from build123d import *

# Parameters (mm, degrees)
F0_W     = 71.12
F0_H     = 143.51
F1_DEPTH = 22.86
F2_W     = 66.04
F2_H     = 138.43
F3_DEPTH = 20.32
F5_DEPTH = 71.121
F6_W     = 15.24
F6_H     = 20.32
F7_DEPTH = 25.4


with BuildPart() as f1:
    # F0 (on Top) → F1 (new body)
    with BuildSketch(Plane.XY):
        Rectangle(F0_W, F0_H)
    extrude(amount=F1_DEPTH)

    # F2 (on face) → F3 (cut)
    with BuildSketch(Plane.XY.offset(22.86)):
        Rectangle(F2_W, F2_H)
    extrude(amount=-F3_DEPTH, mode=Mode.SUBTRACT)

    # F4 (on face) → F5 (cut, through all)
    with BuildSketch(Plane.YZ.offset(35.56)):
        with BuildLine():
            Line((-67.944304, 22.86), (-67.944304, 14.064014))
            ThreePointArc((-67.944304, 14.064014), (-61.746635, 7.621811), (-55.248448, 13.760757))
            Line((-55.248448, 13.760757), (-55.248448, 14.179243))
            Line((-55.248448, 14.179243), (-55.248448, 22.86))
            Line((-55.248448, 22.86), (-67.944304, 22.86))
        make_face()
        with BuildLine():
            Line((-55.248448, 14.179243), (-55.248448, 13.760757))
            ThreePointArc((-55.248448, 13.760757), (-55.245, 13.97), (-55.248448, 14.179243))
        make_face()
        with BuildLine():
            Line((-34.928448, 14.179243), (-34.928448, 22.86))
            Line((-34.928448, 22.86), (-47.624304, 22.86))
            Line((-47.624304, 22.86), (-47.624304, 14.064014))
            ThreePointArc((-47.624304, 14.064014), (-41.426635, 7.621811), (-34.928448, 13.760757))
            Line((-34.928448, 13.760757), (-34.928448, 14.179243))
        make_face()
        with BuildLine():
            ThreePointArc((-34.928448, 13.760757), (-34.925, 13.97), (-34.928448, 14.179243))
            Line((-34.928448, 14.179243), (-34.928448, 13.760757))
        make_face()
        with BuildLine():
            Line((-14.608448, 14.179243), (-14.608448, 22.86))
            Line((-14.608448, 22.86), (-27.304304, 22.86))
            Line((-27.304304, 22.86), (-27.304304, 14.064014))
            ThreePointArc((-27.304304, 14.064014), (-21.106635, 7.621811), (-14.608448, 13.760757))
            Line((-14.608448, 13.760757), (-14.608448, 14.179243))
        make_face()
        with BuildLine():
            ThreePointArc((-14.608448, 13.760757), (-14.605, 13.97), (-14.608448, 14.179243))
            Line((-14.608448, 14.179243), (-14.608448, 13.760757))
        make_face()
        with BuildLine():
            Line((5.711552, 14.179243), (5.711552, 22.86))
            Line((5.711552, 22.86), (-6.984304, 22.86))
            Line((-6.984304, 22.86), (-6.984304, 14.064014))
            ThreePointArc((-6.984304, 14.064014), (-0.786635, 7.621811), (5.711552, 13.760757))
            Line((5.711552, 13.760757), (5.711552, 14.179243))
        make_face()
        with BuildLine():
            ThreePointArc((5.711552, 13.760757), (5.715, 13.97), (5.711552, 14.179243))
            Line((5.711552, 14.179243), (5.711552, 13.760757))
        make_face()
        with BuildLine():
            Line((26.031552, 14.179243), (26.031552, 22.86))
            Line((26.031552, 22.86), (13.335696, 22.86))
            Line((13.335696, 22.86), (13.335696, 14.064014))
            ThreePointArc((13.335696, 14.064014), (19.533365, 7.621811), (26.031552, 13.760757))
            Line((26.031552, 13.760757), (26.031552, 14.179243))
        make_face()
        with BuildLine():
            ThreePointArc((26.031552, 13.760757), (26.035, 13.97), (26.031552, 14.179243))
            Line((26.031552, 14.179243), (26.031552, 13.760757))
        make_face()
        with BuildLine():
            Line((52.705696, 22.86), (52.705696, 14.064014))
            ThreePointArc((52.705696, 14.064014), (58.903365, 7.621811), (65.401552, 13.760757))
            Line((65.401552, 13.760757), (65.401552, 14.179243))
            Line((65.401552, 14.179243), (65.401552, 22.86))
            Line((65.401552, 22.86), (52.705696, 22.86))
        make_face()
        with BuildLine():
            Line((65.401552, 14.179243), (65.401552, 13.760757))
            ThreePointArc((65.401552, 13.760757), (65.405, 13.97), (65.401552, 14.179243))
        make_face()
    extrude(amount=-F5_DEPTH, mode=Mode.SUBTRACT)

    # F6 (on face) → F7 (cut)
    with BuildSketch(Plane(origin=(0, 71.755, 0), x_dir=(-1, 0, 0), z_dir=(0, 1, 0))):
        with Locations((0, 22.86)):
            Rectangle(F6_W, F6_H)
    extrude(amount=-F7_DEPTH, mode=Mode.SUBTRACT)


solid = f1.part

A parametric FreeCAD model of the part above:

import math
import FreeCAD as App
import Part
import Sketcher
Q = App.Units.Quantity


def add_polygon(sketch, points):
    """Adds a closed chain of lines whose ends are joined by coincident constraints."""
    first, n = sketch.GeometryCount, len(points)
    for a, b in zip(points, points[1:] + points[:1]):
        sketch.addGeometry(Part.LineSegment(App.Vector(*a, 0), App.Vector(*b, 0)), False)
    for i in range(n):
        sketch.addConstraint(Sketcher.Constraint("Coincident", first + i, 2, first + (i + 1) % n, 1))

doc = App.newDocument("Part")
params = doc.addObject("Spreadsheet::Sheet", "Params")
for row, (alias, value) in enumerate([
    ("sketch1_width", "2.8 in"),
    ("sketch1_height", "5.65 in"),
    ("pad1_length", "0.9 in"),
    ("sketch2_width", "2.6 in"),
    ("sketch2_height", "5.45 in"),
    ("pocket1_length", "0.8 in"),
    ("sketch3_radius", "0.25 in"),
    ("sketch4_width", "0.6 in"),
    ("sketch4_height", "0.8 in"),
    ("pocket3_length", "1 in"),
], start=1):
    params.set(f"A{row}", alias)
    params.set(f"B{row}", "=" + value)
    params.setAlias(f"B{row}", alias)

body = doc.addObject("PartDesign::Body", "Body")

# Sketch on XY plane
sketch1 = body.newObject("Sketcher::SketchObject", "Sketch")
sketch1.AttachmentSupport = (doc.getObject("XY_Plane"), [""])
sketch1.MapMode = "FlatFace"
add_polygon(sketch1, [(-36, 72), (-36, -72), (36, -72), (36, 72)])  # lines 0-3
sketch1.addConstraint(Sketcher.Constraint("Vertical", 0))
sketch1.addConstraint(Sketcher.Constraint("Horizontal", 1))
sketch1.addConstraint(Sketcher.Constraint("Vertical", 2))
sketch1.addConstraint(Sketcher.Constraint("Horizontal", 3))
sketch1.addConstraint(Sketcher.Constraint("Symmetric", 0, 2, 2, 2, -1, 1))
sketch1.addConstraint(Sketcher.Constraint("DistanceX", 1, 1, 1, 2, Q("2.8 in")))
sketch1.addConstraint(Sketcher.Constraint("DistanceY", 0, 2, 0, 1, Q("5.65 in")))
sketch1.setExpression("Constraints[9]", "Params.sketch1_width")
sketch1.setExpression("Constraints[10]", "Params.sketch1_height")
pad1 = body.newObject("PartDesign::Pad", "Pad")
pad1.Profile = sketch1
pad1.setExpression("Length", "Params.pad1_length")

# Sketch on XY plane
sketch2 = body.newObject("Sketcher::SketchObject", "Sketch001")
sketch2.AttachmentSupport = (doc.getObject("XY_Plane"), [""])
sketch2.MapMode = "FlatFace"
sketch2.AttachmentOffset = App.Placement(App.Vector(0, 0, 0.9 * 25.4), App.Rotation())
add_polygon(sketch2, [(-33, 69), (-33, -69), (33, -69), (33, 69)])  # lines 0-3
sketch2.addConstraint(Sketcher.Constraint("Vertical", 0))
sketch2.addConstraint(Sketcher.Constraint("Horizontal", 1))
sketch2.addConstraint(Sketcher.Constraint("Vertical", 2))
sketch2.addConstraint(Sketcher.Constraint("Horizontal", 3))
sketch2.addConstraint(Sketcher.Constraint("Symmetric", 0, 2, 2, 2, -1, 1))
sketch2.addConstraint(Sketcher.Constraint("DistanceX", 1, 1, 1, 2, Q("2.6 in")))
sketch2.addConstraint(Sketcher.Constraint("DistanceY", 0, 2, 0, 1, Q("5.45 in")))
sketch2.setExpression("Constraints[9]", "Params.sketch2_width")
sketch2.setExpression("Constraints[10]", "Params.sketch2_height")
pocket1 = body.newObject("PartDesign::Pocket", "Pocket")
pocket1.Profile = sketch2
pocket1.setExpression("Length", "Params.pocket1_length")

# Sketch on YZ plane
sketch3 = body.newObject("Sketcher::SketchObject", "Sketch002")
sketch3.AttachmentSupport = (doc.getObject("YZ_Plane"), [""])
sketch3.MapMode = "FlatFace"
sketch3.AttachmentOffset = App.Placement(App.Vector(0, 0, 1.4 * 25.4), App.Rotation())
sketch3.addGeometry(Part.LineSegment(App.Vector(-67.94, 22.86, 0), App.Vector(-67.94, 14.06, 0)), False)
sketch3.addGeometry(Part.ArcOfCircle(Part.Circle(App.Vector(-61.59, 13.97, 0), App.Vector(0, 0, 1), 6.35), math.radians(179), math.radians(358)), False)
sketch3.addGeometry(Part.ArcOfCircle(Part.Circle(App.Vector(-61.6, 13.97, 0), App.Vector(0, 0, 1), 6.35), math.radians(-1.89), math.radians(1.89)), False)
sketch3.addGeometry(Part.LineSegment(App.Vector(-55.25, 14.18, 0), App.Vector(-55.25, 22.86, 0)), False)
sketch3.addGeometry(Part.LineSegment(App.Vector(-55.25, 22.86, 0), App.Vector(-67.94, 22.86, 0)), False)
sketch3.addGeometry(Part.LineSegment(App.Vector(-34.93, 22.86, 0), App.Vector(-47.62, 22.86, 0)), False)
sketch3.addGeometry(Part.LineSegment(App.Vector(-47.62, 22.86, 0), App.Vector(-47.62, 14.06, 0)), False)
sketch3.addGeometry(Part.ArcOfCircle(Part.Circle(App.Vector(-41.27, 13.97, 0), App.Vector(0, 0, 1), 6.35), math.radians(179), math.radians(358)), False)
sketch3.addGeometry(Part.ArcOfCircle(Part.Circle(App.Vector(-41.28, 13.97, 0), App.Vector(0, 0, 1), 6.35), math.radians(-1.89), math.radians(1.89)), False)
sketch3.addGeometry(Part.LineSegment(App.Vector(-34.93, 14.18, 0), App.Vector(-34.93, 22.86, 0)), False)
sketch3.addGeometry(Part.LineSegment(App.Vector(-14.61, 22.86, 0), App.Vector(-27.3, 22.86, 0)), False)
sketch3.addGeometry(Part.LineSegment(App.Vector(-27.3, 22.86, 0), App.Vector(-27.3, 14.06, 0)), False)
sketch3.addGeometry(Part.ArcOfCircle(Part.Circle(App.Vector(-20.95, 13.97, 0), App.Vector(0, 0, 1), 6.35), math.radians(179), math.radians(358)), False)
sketch3.addGeometry(Part.ArcOfCircle(Part.Circle(App.Vector(-20.96, 13.97, 0), App.Vector(0, 0, 1), 6.35), math.radians(-1.89), math.radians(1.89)), False)
sketch3.addGeometry(Part.LineSegment(App.Vector(-14.61, 14.18, 0), App.Vector(-14.61, 22.86, 0)), False)
sketch3.addGeometry(Part.LineSegment(App.Vector(5.71, 22.86, 0), App.Vector(-6.98, 22.86, 0)), False)
sketch3.addGeometry(Part.LineSegment(App.Vector(-6.98, 22.86, 0), App.Vector(-6.98, 14.06, 0)), False)
sketch3.addGeometry(Part.ArcOfCircle(Part.Circle(App.Vector(-0.63, 13.97, 0), App.Vector(0, 0, 1), 6.35), math.radians(179), math.radians(358)), False)
sketch3.addGeometry(Part.ArcOfCircle(Part.Circle(App.Vector(-0.64, 13.97, 0), App.Vector(0, 0, 1), 6.35), math.radians(-1.89), math.radians(1.89)), False)
sketch3.addGeometry(Part.LineSegment(App.Vector(5.71, 14.18, 0), App.Vector(5.71, 22.86, 0)), False)
sketch3.addGeometry(Part.LineSegment(App.Vector(26.03, 22.86, 0), App.Vector(13.34, 22.86, 0)), False)
sketch3.addGeometry(Part.LineSegment(App.Vector(13.34, 22.86, 0), App.Vector(13.34, 14.06, 0)), False)
sketch3.addGeometry(Part.ArcOfCircle(Part.Circle(App.Vector(19.69, 13.97, 0), App.Vector(0, 0, 1), 6.35), math.radians(179), math.radians(358)), False)
sketch3.addGeometry(Part.ArcOfCircle(Part.Circle(App.Vector(19.68, 13.97, 0), App.Vector(0, 0, 1), 6.35), math.radians(-1.89), math.radians(1.89)), False)
sketch3.addGeometry(Part.LineSegment(App.Vector(26.03, 14.18, 0), App.Vector(26.03, 22.86, 0)), False)
sketch3.addGeometry(Part.LineSegment(App.Vector(52.71, 22.86, 0), App.Vector(52.71, 14.06, 0)), False)
sketch3.addGeometry(Part.ArcOfCircle(Part.Circle(App.Vector(59.06, 13.97, 0), App.Vector(0, 0, 1), 6.35), math.radians(179), math.radians(358)), False)
sketch3.addGeometry(Part.ArcOfCircle(Part.Circle(App.Vector(59.05, 13.97, 0), App.Vector(0, 0, 1), 6.35), math.radians(-1.89), math.radians(1.89)), False)
sketch3.addGeometry(Part.LineSegment(App.Vector(65.4, 14.18, 0), App.Vector(65.4, 22.86, 0)), False)
sketch3.addGeometry(Part.LineSegment(App.Vector(65.4, 22.86, 0), App.Vector(52.71, 22.86, 0)), False)
sketch3.addConstraint(Sketcher.Constraint("Coincident", 0, 2, 1, 1))
sketch3.addConstraint(Sketcher.Constraint("Coincident", 1, 2, 2, 1))
sketch3.addConstraint(Sketcher.Constraint("Coincident", 2, 2, 3, 1))
sketch3.addConstraint(Sketcher.Constraint("Coincident", 3, 2, 4, 1))
sketch3.addConstraint(Sketcher.Constraint("Coincident", 4, 2, 0, 1))
sketch3.addConstraint(Sketcher.Constraint("Coincident", 5, 2, 6, 1))
sketch3.addConstraint(Sketcher.Constraint("Coincident", 6, 2, 7, 1))
sketch3.addConstraint(Sketcher.Constraint("Coincident", 7, 2, 8, 1))
sketch3.addConstraint(Sketcher.Constraint("Coincident", 8, 2, 9, 1))
sketch3.addConstraint(Sketcher.Constraint("Coincident", 9, 2, 5, 1))
sketch3.addConstraint(Sketcher.Constraint("Coincident", 10, 2, 11, 1))
sketch3.addConstraint(Sketcher.Constraint("Coincident", 11, 2, 12, 1))
sketch3.addConstraint(Sketcher.Constraint("Coincident", 12, 2, 13, 1))
sketch3.addConstraint(Sketcher.Constraint("Coincident", 13, 2, 14, 1))
sketch3.addConstraint(Sketcher.Constraint("Coincident", 14, 2, 10, 1))
sketch3.addConstraint(Sketcher.Constraint("Coincident", 15, 2, 16, 1))
sketch3.addConstraint(Sketcher.Constraint("Coincident", 16, 2, 17, 1))
sketch3.addConstraint(Sketcher.Constraint("Coincident", 17, 2, 18, 1))
sketch3.addConstraint(Sketcher.Constraint("Coincident", 18, 2, 19, 1))
sketch3.addConstraint(Sketcher.Constraint("Coincident", 19, 2, 15, 1))
sketch3.addConstraint(Sketcher.Constraint("Coincident", 20, 2, 21, 1))
sketch3.addConstraint(Sketcher.Constraint("Coincident", 21, 2, 22, 1))
sketch3.addConstraint(Sketcher.Constraint("Coincident", 22, 2, 23, 1))
sketch3.addConstraint(Sketcher.Constraint("Coincident", 23, 2, 24, 1))
sketch3.addConstraint(Sketcher.Constraint("Coincident", 24, 2, 20, 1))
sketch3.addConstraint(Sketcher.Constraint("Coincident", 25, 2, 26, 1))
sketch3.addConstraint(Sketcher.Constraint("Coincident", 26, 2, 27, 1))
sketch3.addConstraint(Sketcher.Constraint("Coincident", 27, 2, 28, 1))
sketch3.addConstraint(Sketcher.Constraint("Coincident", 28, 2, 29, 1))
sketch3.addConstraint(Sketcher.Constraint("Coincident", 29, 2, 25, 1))
sketch3.addConstraint(Sketcher.Constraint("Vertical", 0))
sketch3.addConstraint(Sketcher.Constraint("Vertical", 3))
sketch3.addConstraint(Sketcher.Constraint("Horizontal", 4))
sketch3.addConstraint(Sketcher.Constraint("Horizontal", 5))
sketch3.addConstraint(Sketcher.Constraint("Vertical", 6))
sketch3.addConstraint(Sketcher.Constraint("Vertical", 9))
sketch3.addConstraint(Sketcher.Constraint("Horizontal", 10))
sketch3.addConstraint(Sketcher.Constraint("Vertical", 11))
sketch3.addConstraint(Sketcher.Constraint("Vertical", 14))
sketch3.addConstraint(Sketcher.Constraint("Horizontal", 15))
sketch3.addConstraint(Sketcher.Constraint("Vertical", 16))
sketch3.addConstraint(Sketcher.Constraint("Vertical", 19))
sketch3.addConstraint(Sketcher.Constraint("Horizontal", 20))
sketch3.addConstraint(Sketcher.Constraint("Vertical", 21))
sketch3.addConstraint(Sketcher.Constraint("Vertical", 24))
sketch3.addConstraint(Sketcher.Constraint("Vertical", 25))
sketch3.addConstraint(Sketcher.Constraint("Vertical", 28))
sketch3.addConstraint(Sketcher.Constraint("Horizontal", 29))
sketch3.addConstraint(Sketcher.Constraint("Equal", 1, 7))
sketch3.addConstraint(Sketcher.Constraint("Equal", 2, 8))
sketch3.addConstraint(Sketcher.Constraint("Equal", 7, 12))
sketch3.addConstraint(Sketcher.Constraint("Equal", 8, 13))
sketch3.addConstraint(Sketcher.Constraint("Equal", 12, 17))
sketch3.addConstraint(Sketcher.Constraint("Equal", 13, 18))
sketch3.addConstraint(Sketcher.Constraint("Equal", 17, 22))
sketch3.addConstraint(Sketcher.Constraint("Equal", 18, 23))
sketch3.addConstraint(Sketcher.Constraint("Equal", 22, 26))
sketch3.addConstraint(Sketcher.Constraint("Equal", 23, 27))
sketch3.addConstraint(Sketcher.Constraint("Horizontal", 1, 3, 2, 3))
sketch3.addConstraint(Sketcher.Constraint("Horizontal", 2, 3, 7, 3))
sketch3.addConstraint(Sketcher.Constraint("Horizontal", 7, 3, 8, 3))
sketch3.addConstraint(Sketcher.Constraint("Horizontal", 8, 3, 12, 3))
sketch3.addConstraint(Sketcher.Constraint("Horizontal", 12, 3, 13, 3))
sketch3.addConstraint(Sketcher.Constraint("Horizontal", 13, 3, 17, 3))
sketch3.addConstraint(Sketcher.Constraint("Horizontal", 17, 3, 18, 3))
sketch3.addConstraint(Sketcher.Constraint("Horizontal", 18, 3, 22, 3))
sketch3.addConstraint(Sketcher.Constraint("Horizontal", 22, 3, 23, 3))
sketch3.addConstraint(Sketcher.Constraint("Horizontal", 23, 3, 26, 3))
sketch3.addConstraint(Sketcher.Constraint("Horizontal", 26, 3, 27, 3))
sketch3.addConstraint(Sketcher.Constraint("Horizontal", 4, 2, 5, 2))
sketch3.addConstraint(Sketcher.Constraint("Horizontal", 0, 2, 6, 2))
sketch3.addConstraint(Sketcher.Constraint("Horizontal", 1, 2, 7, 2))
sketch3.addConstraint(Sketcher.Constraint("Horizontal", 2, 2, 8, 2))
sketch3.addConstraint(Sketcher.Constraint("Horizontal", 9, 2, 10, 2))
sketch3.addConstraint(Sketcher.Constraint("Horizontal", 6, 2, 11, 2))
sketch3.addConstraint(Sketcher.Constraint("Horizontal", 7, 2, 12, 2))
sketch3.addConstraint(Sketcher.Constraint("Horizontal", 8, 2, 13, 2))
sketch3.addConstraint(Sketcher.Constraint("Horizontal", 14, 2, 15, 2))
sketch3.addConstraint(Sketcher.Constraint("Horizontal", 11, 2, 16, 2))
sketch3.addConstraint(Sketcher.Constraint("Horizontal", 12, 2, 17, 2))
sketch3.addConstraint(Sketcher.Constraint("Horizontal", 13, 2, 18, 2))
sketch3.addConstraint(Sketcher.Constraint("Horizontal", 19, 2, 20, 2))
sketch3.addConstraint(Sketcher.Constraint("Horizontal", 16, 2, 21, 2))
sketch3.addConstraint(Sketcher.Constraint("Horizontal", 17, 2, 22, 2))
sketch3.addConstraint(Sketcher.Constraint("Horizontal", 18, 2, 23, 2))
sketch3.addConstraint(Sketcher.Constraint("Horizontal", 21, 2, 25, 2))
sketch3.addConstraint(Sketcher.Constraint("Horizontal", 22, 2, 26, 2))
sketch3.addConstraint(Sketcher.Constraint("Horizontal", 23, 2, 27, 2))
sketch3.addConstraint(Sketcher.Constraint("Horizontal", 24, 2, 28, 2))
sketch3.addConstraint(Sketcher.Constraint("Vertical", 1, 2, 2, 2))
sketch3.addConstraint(Sketcher.Constraint("Radius", 1, Q("0.25 in")))
sketch3.addConstraint(Sketcher.Constraint("DistanceY", -1, 1, 3, 2, Q("0.9 in")))
sketch3.addConstraint(Sketcher.Constraint("DistanceX", 1, 3, 7, 3, Q("0.8 in")))
sketch3.addConstraint(Sketcher.Constraint("DistanceX", 7, 3, 12, 3, Q("0.8 in")))
sketch3.addConstraint(Sketcher.Constraint("DistanceX", 12, 3, 17, 3, Q("0.8 in")))
sketch3.addConstraint(Sketcher.Constraint("DistanceX", 17, 3, 22, 3, Q("0.8 in")))
sketch3.addConstraint(Sketcher.Constraint("DistanceY", -1, 1, 1, 3, Q("0.55 in")))
sketch3.addConstraint(Sketcher.Constraint("DistanceX", 22, 3, 26, 3, Q("1.55 in")))
sketch3.addConstraint(Sketcher.Constraint("DistanceX", 1, 3, -1, 1, Q("2.425 in")))
sketch3.addConstraint(Sketcher.Constraint("Radius", 2, 6.350714))
sketch3.addConstraint(Sketcher.Constraint("DistanceX", 4, 2, 4, 1, 12.695856))
sketch3.addConstraint(Sketcher.Constraint("DistanceY", 0, 2, 0, 1, 8.795986))
sketch3.setExpression("Constraints[90]", "Params.sketch3_radius")
pocket2 = body.newObject("PartDesign::Pocket", "Pocket001")
pocket2.Profile = sketch3
pocket2.Type = "ThroughAll"

# Sketch on XZ plane
sketch4 = body.newObject("Sketcher::SketchObject", "Sketch003")
sketch4.AttachmentSupport = (doc.getObject("XZ_Plane"), [""])
sketch4.MapMode = "FlatFace"
sketch4.AttachmentOffset = App.Placement(App.Vector(0, 0, -2.825 * 25.4), App.Rotation())
add_polygon(sketch4, [(8, 33), (8, 13), (-8, 13), (-8, 33)])  # lines 0-3
sketch4.addConstraint(Sketcher.Constraint("Vertical", 0))
sketch4.addConstraint(Sketcher.Constraint("Horizontal", 1))
sketch4.addConstraint(Sketcher.Constraint("Vertical", 2))
sketch4.addConstraint(Sketcher.Constraint("Horizontal", 3))
sketch4.addConstraint(Sketcher.Constraint("DistanceX", 1, 2, 1, 1, Q("0.6 in")))
sketch4.addConstraint(Sketcher.Constraint("DistanceY", 0, 2, 0, 1, Q("0.8 in")))
sketch4.addConstraint(Sketcher.Constraint("DistanceX", -1, 1, 0, 2, Q("0.3 in")))
sketch4.addConstraint(Sketcher.Constraint("DistanceY", -1, 1, 0, 2, Q("0.5 in")))
sketch4.setExpression("Constraints[8]", "Params.sketch4_width")
sketch4.setExpression("Constraints[9]", "Params.sketch4_height")
pocket3 = body.newObject("PartDesign::Pocket", "Pocket002")
pocket3.Profile = sketch4
pocket3.setExpression("Length", "Params.pocket3_length")
pocket3.Reversed = True

doc.recompute()
